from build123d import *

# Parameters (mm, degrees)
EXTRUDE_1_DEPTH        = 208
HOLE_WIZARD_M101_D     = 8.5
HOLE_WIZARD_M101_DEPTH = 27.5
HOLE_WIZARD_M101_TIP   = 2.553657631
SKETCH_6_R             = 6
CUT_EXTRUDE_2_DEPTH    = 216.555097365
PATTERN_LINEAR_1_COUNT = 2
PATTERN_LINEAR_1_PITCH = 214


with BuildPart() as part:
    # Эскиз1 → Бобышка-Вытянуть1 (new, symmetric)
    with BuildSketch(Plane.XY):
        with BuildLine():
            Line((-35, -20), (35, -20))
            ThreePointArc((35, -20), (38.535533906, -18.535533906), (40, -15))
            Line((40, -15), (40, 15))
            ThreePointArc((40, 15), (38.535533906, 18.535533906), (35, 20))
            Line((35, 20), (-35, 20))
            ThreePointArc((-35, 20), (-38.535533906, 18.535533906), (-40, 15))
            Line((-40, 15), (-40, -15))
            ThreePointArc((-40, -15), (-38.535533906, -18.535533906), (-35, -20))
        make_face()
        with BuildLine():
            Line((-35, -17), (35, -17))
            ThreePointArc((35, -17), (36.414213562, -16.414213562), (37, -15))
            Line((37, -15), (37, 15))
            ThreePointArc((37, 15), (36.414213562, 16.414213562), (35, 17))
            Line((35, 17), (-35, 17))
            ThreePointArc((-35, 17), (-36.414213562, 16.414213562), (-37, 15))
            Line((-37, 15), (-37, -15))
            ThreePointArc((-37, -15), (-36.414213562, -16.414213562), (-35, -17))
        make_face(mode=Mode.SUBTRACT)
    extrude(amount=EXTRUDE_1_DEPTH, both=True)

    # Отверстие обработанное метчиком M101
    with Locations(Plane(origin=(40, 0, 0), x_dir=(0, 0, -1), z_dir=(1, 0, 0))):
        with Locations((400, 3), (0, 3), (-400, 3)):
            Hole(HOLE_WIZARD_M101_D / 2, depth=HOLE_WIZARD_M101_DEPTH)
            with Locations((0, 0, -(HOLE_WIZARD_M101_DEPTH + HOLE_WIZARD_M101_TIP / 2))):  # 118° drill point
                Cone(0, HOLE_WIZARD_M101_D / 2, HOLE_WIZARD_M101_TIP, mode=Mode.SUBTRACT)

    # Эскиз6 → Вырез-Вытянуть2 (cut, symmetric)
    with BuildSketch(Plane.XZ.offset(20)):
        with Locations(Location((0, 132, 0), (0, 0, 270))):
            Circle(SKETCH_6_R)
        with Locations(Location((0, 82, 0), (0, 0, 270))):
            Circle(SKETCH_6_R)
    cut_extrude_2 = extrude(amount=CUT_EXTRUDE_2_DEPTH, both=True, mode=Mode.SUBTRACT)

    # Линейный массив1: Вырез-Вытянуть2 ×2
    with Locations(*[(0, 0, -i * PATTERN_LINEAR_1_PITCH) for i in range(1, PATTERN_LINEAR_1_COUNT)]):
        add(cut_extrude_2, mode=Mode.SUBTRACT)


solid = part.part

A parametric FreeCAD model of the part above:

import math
import FreeCAD as App
import Part
import Sketcher

V = App.Vector

doc = App.newDocument("Part")
body = doc.addObject("PartDesign::Body", "Body")

# Sketch on XY plane
sketch1 = body.newObject("Sketcher::SketchObject", "Sketch")
sketch1.AttachmentSupport = (doc.getObject("XY_Plane"), [""])
sketch1.MapMode = "FlatFace"
sketch1.addGeometry([
    Part.LineSegment(V(-35, -20, 0), V(35, -20, 0)),  # 0
    Part.ArcOfCircle(Part.Circle(V(35, -15, 0), V(0, 0, 1), 5), math.radians(-90), math.radians(0)),  # 1
    Part.LineSegment(V(40, -15, 0), V(40, 15, 0)),  # 2
    Part.ArcOfCircle(Part.Circle(V(35, 15, 0), V(0, 0, 1), 5), math.radians(0), math.radians(90)),  # 3
    Part.LineSegment(V(35, 20, 0), V(-35, 20, 0)),  # 4
    Part.ArcOfCircle(Part.Circle(V(-35, 15, 0), V(0, 0, 1), 5), math.radians(90), math.radians(180)),  # 5
    Part.LineSegment(V(-40, 15, 0), V(-40, -15, 0)),  # 6
    Part.ArcOfCircle(Part.Circle(V(-35, -15, 0), V(0, 0, 1), 5), math.radians(180), math.radians(270)),  # 7
    Part.LineSegment(V(35, -17, 0), V(-35, -17, 0)),  # 8
    Part.ArcOfCircle(Part.Circle(V(-35, -15, 0), V(0, 0, 1), 2), math.radians(-180), math.radians(-90)),  # 9
    Part.LineSegment(V(-37, -15, 0), V(-37, 15, 0)),  # 10
    Part.ArcOfCircle(Part.Circle(V(-35, 15, 0), V(0, 0, 1), 2), math.radians(90), math.radians(180)),  # 11
    Part.LineSegment(V(-35, 17, 0), V(35, 17, 0)),  # 12
    Part.ArcOfCircle(Part.Circle(V(35, 15, 0), V(0, 0, 1), 2), math.radians(0), math.radians(90)),  # 13
    Part.LineSegment(V(37, 15, 0), V(37, -15, 0)),  # 14
    Part.ArcOfCircle(Part.Circle(V(35, -15, 0), V(0, 0, 1), 2), math.radians(-90), math.radians(0)),  # 15
], False)
sketch1.addConstraint([
    Sketcher.Constraint("Tangent", 0, 2, 1, 1),
    Sketcher.Constraint("Tangent", 1, 2, 2, 1),
    Sketcher.Constraint("Tangent", 2, 2, 3, 1),
    Sketcher.Constraint("Tangent", 3, 2, 4, 1),
    Sketcher.Constraint("Tangent", 4, 2, 5, 1),
    Sketcher.Constraint("Tangent", 5, 2, 6, 1),
    Sketcher.Constraint("Tangent", 6, 2, 7, 1),
    Sketcher.Constraint("Tangent", 7, 2, 0, 1),
    Sketcher.Constraint("Tangent", 8, 2, 9, 2),
    Sketcher.Constraint("Tangent", 9, 1, 10, 1),
    Sketcher.Constraint("Tangent", 10, 2, 11, 2),
    Sketcher.Constraint("Tangent", 11, 1, 12, 1),
    Sketcher.Constraint("Tangent", 12, 2, 13, 2),
    Sketcher.Constraint("Tangent", 13, 1, 14, 1),
    Sketcher.Constraint("Tangent", 14, 2, 15, 2),
    Sketcher.Constraint("Tangent", 15, 1, 8, 1),
    Sketcher.Constraint("Horizontal", 0),
    Sketcher.Constraint("Vertical", 2),
    Sketcher.Constraint("Horizontal", 4),
    Sketcher.Constraint("Vertical", 6),
    Sketcher.Constraint("Horizontal", 8),
    Sketcher.Constraint("Vertical", 10),
    Sketcher.Constraint("Horizontal", 12),
    Sketcher.Constraint("Vertical", 14),
    Sketcher.Constraint("Coincident", 9, 3, 7, 3),
    Sketcher.Constraint("Coincident", 11, 3, 5, 3),
    Sketcher.Constraint("Coincident", 13, 3, 3, 3),
    Sketcher.Constraint("Equal", 1, 3),
    Sketcher.Constraint("Equal", 3, 5),
    Sketcher.Constraint("Equal", 5, 7),
    Sketcher.Constraint("Equal", 13, 15),
    Sketcher.Constraint("Symmetric", 1, 3, 5, 3, -1, 1),
    Sketcher.Constraint("Radius", 1, 5.0),
    Sketcher.Constraint("Radius", 9, 2.0),
    Sketcher.Constraint("DistanceX", 0, 1, 0, 2, 70.0),
    Sketcher.Constraint("DistanceY", 2, 1, 2, 2, 30.0),
])
pad1 = body.newObject("PartDesign::Pad", "Pad")
pad1.Profile = sketch1
pad1.Length = 416
pad1.Midplane = True

# Sketch on YZ plane
sketch2 = body.newObject("Sketcher::SketchObject", "Sketch001")
sketch2.AttachmentSupport = (doc.getObject("YZ_Plane"), [""])
sketch2.MapMode = "FlatFace"
sketch2.AttachmentOffset = App.Placement(V(0, 0, 40), App.Rotation())
sketch2.addGeometry([
    Part.Circle(V(3, -400, 0), V(0, 0, 1), 4.2),
    Part.Circle(V(3, 0, 0), V(0, 0, 1), 4.2),
    Part.Circle(V(3, 400, 0), V(0, 0, 1), 4.2),
], False)
sketch2.addConstraint([
    Sketcher.Constraint("Equal", 0, 1),
    Sketcher.Constraint("Equal", 1, 2),
    Sketcher.Constraint("Symmetric", 0, 3, 2, 3, -1),
    Sketcher.Constraint("PointOnObject", 1, 3, -1),
    Sketcher.Constraint("Vertical", 0, 3, 1, 3),
    Sketcher.Constraint("Diameter", 0, 8.5),
    Sketcher.Constraint("DistanceX", -1, 1, 0, 3, 3.0),
    Sketcher.Constraint("DistanceY", 0, 3, -1, 1, 400.0),
])
doc.recompute()
hole = body.newObject("PartDesign::Hole", "Hole")
hole.Profile = sketch2
hole.ThreadType = "None"
hole.Diameter = 8.5
hole.DepthType = "Dimension"
hole.Depth = 27.5
hole.DrillPoint = "Angled"
hole.DrillPointAngle = 118

# Sketch on XZ plane
sketch3 = body.newObject("Sketcher::SketchObject", "Sketch002")
sketch3.AttachmentSupport = (doc.getObject("XZ_Plane"), [""])
sketch3.MapMode = "FlatFace"
sketch3.AttachmentOffset = App.Placement(V(0, 0, 20), App.Rotation())
sketch3.addGeometry([
    Part.Circle(V(0, 132, 0), V(0, 0, 1), 6),
    Part.Circle(V(0, 82, 0), V(0, 0, 1), 6),
], False)
sketch3.addConstraint([
    Sketcher.Constraint("Equal", 0, 1),
    Sketcher.Constraint("PointOnObject", 0, 3, -2),
    Sketcher.Constraint("PointOnObject", 1, 3, -2),
    Sketcher.Constraint("Diameter", 0, 12.0),
    Sketcher.Constraint("DistanceY", -1, 1, 0, 3, 132.0),
    Sketcher.Constraint("DistanceY", -1, 1, 1, 3, 82.0),
])
pocket1 = body.newObject("PartDesign::Pocket", "Pocket")
pocket1.Profile = sketch3
pocket1.Length = 433.110195
pocket1.Midplane = True
doc.recompute()

linearpattern = body.newObject("PartDesign::LinearPattern", "LinearPattern")
linearpattern.Originals = [pocket1]
linearpattern.Direction = (doc.getObject("Z_Axis"), [""])
linearpattern.Mode = "offset"
linearpattern.Offset = 214
linearpattern.Occurrences = 2
linearpattern.Reversed = True
body.Tip = linearpattern

doc.recompute()
